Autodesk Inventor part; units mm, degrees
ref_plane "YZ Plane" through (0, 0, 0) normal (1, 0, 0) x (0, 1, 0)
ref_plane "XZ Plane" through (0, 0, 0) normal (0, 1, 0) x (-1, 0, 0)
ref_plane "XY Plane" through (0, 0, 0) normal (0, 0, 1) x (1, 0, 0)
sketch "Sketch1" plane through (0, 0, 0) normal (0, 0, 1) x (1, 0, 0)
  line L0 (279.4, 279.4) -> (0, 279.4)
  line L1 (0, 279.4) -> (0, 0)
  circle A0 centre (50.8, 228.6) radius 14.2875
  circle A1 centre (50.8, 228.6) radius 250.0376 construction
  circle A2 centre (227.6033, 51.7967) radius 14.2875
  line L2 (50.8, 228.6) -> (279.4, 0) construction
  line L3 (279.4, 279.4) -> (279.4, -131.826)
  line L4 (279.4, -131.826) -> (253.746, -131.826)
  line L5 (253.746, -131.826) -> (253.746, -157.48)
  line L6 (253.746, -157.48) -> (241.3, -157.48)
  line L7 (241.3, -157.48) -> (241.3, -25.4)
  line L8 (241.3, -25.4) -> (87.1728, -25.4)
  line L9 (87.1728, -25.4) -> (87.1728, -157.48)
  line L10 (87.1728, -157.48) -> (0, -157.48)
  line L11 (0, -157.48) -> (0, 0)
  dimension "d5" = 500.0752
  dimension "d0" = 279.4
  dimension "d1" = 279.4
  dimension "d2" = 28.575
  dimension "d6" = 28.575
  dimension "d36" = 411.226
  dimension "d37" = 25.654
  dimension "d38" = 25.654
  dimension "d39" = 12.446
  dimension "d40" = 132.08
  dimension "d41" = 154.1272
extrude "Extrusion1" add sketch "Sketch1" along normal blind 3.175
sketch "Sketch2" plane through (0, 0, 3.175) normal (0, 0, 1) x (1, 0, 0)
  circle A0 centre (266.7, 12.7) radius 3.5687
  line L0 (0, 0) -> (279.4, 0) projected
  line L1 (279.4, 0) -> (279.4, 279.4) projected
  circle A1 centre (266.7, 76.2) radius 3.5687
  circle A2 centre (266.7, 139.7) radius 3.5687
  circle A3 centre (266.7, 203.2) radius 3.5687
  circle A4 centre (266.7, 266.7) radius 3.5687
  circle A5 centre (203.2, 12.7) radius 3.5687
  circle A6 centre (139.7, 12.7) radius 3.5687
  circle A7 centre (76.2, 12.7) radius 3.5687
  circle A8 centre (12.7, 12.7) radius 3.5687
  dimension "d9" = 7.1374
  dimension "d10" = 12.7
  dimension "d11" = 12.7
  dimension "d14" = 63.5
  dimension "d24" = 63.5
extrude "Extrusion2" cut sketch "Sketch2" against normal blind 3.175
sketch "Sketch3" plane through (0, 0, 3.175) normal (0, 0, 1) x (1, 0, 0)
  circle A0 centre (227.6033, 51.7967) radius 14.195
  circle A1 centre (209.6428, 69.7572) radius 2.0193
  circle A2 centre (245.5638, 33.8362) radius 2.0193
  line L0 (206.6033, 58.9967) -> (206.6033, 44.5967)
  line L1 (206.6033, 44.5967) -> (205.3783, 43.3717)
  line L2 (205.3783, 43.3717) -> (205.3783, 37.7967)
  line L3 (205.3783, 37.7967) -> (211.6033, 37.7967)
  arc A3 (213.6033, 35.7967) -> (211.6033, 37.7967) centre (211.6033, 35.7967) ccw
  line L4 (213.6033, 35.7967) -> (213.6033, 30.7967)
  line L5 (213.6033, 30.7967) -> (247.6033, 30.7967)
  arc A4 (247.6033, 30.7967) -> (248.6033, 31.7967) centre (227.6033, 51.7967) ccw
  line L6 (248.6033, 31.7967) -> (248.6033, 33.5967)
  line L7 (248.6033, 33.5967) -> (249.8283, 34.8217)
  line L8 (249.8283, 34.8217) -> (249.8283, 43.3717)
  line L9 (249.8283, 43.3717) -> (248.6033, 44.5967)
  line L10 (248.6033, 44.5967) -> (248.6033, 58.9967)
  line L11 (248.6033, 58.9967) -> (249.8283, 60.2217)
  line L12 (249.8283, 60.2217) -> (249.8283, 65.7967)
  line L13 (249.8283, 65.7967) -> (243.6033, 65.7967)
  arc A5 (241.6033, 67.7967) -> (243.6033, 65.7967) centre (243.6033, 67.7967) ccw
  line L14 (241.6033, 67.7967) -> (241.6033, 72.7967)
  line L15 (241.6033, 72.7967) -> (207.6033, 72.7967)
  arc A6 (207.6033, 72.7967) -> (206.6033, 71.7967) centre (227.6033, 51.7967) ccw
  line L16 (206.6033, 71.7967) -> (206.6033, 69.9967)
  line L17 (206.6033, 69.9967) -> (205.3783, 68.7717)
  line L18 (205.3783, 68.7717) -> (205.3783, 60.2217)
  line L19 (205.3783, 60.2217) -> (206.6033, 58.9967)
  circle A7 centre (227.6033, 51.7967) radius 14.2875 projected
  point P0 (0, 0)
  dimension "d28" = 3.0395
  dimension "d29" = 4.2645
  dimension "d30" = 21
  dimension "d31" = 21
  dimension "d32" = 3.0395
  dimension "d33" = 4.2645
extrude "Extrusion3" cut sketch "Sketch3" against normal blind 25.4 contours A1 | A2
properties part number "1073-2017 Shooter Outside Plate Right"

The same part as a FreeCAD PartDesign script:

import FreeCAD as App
import Part
import Sketcher
from FreeCAD import Vector
Q = App.Units.Quantity

doc = App.newDocument("Part")
body = doc.addObject("PartDesign::Body", "Body")

# Sketch on XY plane
sketch1 = body.newObject("Sketcher::SketchObject", "Sketch")
sketch1.AttachmentSupport = (doc.getObject("XY_Plane"), [""])
sketch1.MapMode = "FlatFace"
sketch1.addGeometry([
    Part.LineSegment(Vector(279, -132, 0), Vector(279, 279, 0)),  # 0
    Part.LineSegment(Vector(279, 279, 0), Vector(0, 279, 0)),  # 1
    Part.LineSegment(Vector(0, 279, 0), Vector(0, -157, 0)),  # 2
    Part.LineSegment(Vector(0, -157, 0), Vector(87, -157, 0)),  # 3
    Part.LineSegment(Vector(87, -157, 0), Vector(87, -25, 0)),  # 4
    Part.LineSegment(Vector(87, -25, 0), Vector(241, -25, 0)),  # 5
    Part.LineSegment(Vector(241, -25, 0), Vector(241, -157, 0)),  # 6
    Part.LineSegment(Vector(241, -157, 0), Vector(254, -157, 0)),  # 7
    Part.LineSegment(Vector(254, -157, 0), Vector(254, -132, 0)),  # 8
    Part.LineSegment(Vector(254, -132, 0), Vector(279, -132, 0)),  # 9
    Part.Circle(Vector(228, 52, 0), Vector(0, 0, 1), 14),  # 10
    Part.Circle(Vector(51, 229, 0), Vector(0, 0, 1), 14),  # 11
], False)
sketch1.addConstraint([
    Sketcher.Constraint("Coincident", 0, 2, 1, 1),
    Sketcher.Constraint("Coincident", 1, 2, 2, 1),
    Sketcher.Constraint("Coincident", 2, 2, 3, 1),
    Sketcher.Constraint("Coincident", 3, 2, 4, 1),
    Sketcher.Constraint("Coincident", 4, 2, 5, 1),
    Sketcher.Constraint("Coincident", 5, 2, 6, 1),
    Sketcher.Constraint("Coincident", 6, 2, 7, 1),
    Sketcher.Constraint("Coincident", 7, 2, 8, 1),
    Sketcher.Constraint("Coincident", 8, 2, 9, 1),
    Sketcher.Constraint("Coincident", 9, 2, 0, 1),
    Sketcher.Constraint("Vertical", 0),
    Sketcher.Constraint("Horizontal", 1),
    Sketcher.Constraint("Vertical", 2),
    Sketcher.Constraint("Horizontal", 3),
    Sketcher.Constraint("Vertical", 4),
    Sketcher.Constraint("Horizontal", 5),
    Sketcher.Constraint("Vertical", 6),
    Sketcher.Constraint("Horizontal", 7),
    Sketcher.Constraint("Vertical", 8),
    Sketcher.Constraint("Horizontal", 9),
    Sketcher.Constraint("Equal", 10, 11),
    Sketcher.Constraint("PointOnObject", 1, 2, -2),
    Sketcher.Constraint("Horizontal", 3, 2, 6, 2),
    Sketcher.Constraint("Equal", 9, 8),
    Sketcher.Constraint("DistanceX", 1, 2, 1, 1, Q("11 in")),
    Sketcher.Constraint("Diameter", 10, Q("1.125 in")),
    Sketcher.Constraint("DistanceY", 4, 1, 4, 2, Q("5.2 in")),
    Sketcher.Constraint("DistanceY", -1, 1, 0, 2, Q("11 in")),
    Sketcher.Constraint("DistanceX", 7, 1, 7, 2, Q("0.49 in")),
    Sketcher.Constraint("DistanceX", 9, 1, 9, 2, Q("1.01 in")),
    Sketcher.Constraint("DistanceY", 0, 1, 0, 2, Q("16.19 in")),
    Sketcher.Constraint("DistanceX", 5, 1, 5, 2, Q("6.068 in")),
    Sketcher.Constraint("DistanceX", -1, 1, 11, 3, Q("2 in")),
    Sketcher.Constraint("DistanceY", -1, 1, 11, 3, Q("9 in")),
    Sketcher.Constraint("DistanceX", -1, 1, 10, 3, 227.6033),
    Sketcher.Constraint("DistanceY", -1, 1, 10, 3, 51.7967),
])
pad1 = body.newObject("PartDesign::Pad", "Pad")
pad1.Profile = sketch1
pad1.Length = Q("0.125 in")

# Sketch on XY plane
sketch2 = body.newObject("Sketcher::SketchObject", "Sketch001")
sketch2.AttachmentSupport = (doc.getObject("XY_Plane"), [""])
sketch2.MapMode = "FlatFace"
sketch2.AttachmentOffset = App.Placement(Vector(0, 0, 0.125 * 25.4), App.Rotation())
sketch2.addGeometry([
    Part.Circle(Vector(266.7, 12.7, 0), Vector(0, 0, 1), 3.6),  # 0
    Part.Circle(Vector(266.7, 76.2, 0), Vector(0, 0, 1), 3.6),  # 1
    Part.Circle(Vector(266.7, 139.7, 0), Vector(0, 0, 1), 3.6),  # 2
    Part.Circle(Vector(266.7, 203.2, 0), Vector(0, 0, 1), 3.6),  # 3
    Part.Circle(Vector(266.7, 266.7, 0), Vector(0, 0, 1), 3.6),  # 4
    Part.Circle(Vector(203.2, 12.7, 0), Vector(0, 0, 1), 3.6),  # 5
    Part.Circle(Vector(139.7, 12.7, 0), Vector(0, 0, 1), 3.6),  # 6
    Part.Circle(Vector(76.2, 12.7, 0), Vector(0, 0, 1), 3.6),  # 7
    Part.Circle(Vector(12.7, 12.7, 0), Vector(0, 0, 1), 3.6),  # 8
], False)
sketch2.addConstraint([
    Sketcher.Constraint("Equal", 0, 1),
    Sketcher.Constraint("Equal", 1, 2),
    Sketcher.Constraint("Equal", 2, 3),
    Sketcher.Constraint("Equal", 3, 4),
    Sketcher.Constraint("Equal", 4, 5),
    Sketcher.Constraint("Equal", 5, 6),
    Sketcher.Constraint("Equal", 6, 7),
    Sketcher.Constraint("Equal", 7, 8),
    Sketcher.Constraint("Horizontal", 0, 3, 5, 3),
    Sketcher.Constraint("Horizontal", 5, 3, 6, 3),
    Sketcher.Constraint("Horizontal", 6, 3, 7, 3),
    Sketcher.Constraint("Horizontal", 7, 3, 8, 3),
    Sketcher.Constraint("Vertical", 0, 3, 1, 3),
    Sketcher.Constraint("Vertical", 1, 3, 2, 3),
    Sketcher.Constraint("Vertical", 2, 3, 3, 3),
    Sketcher.Constraint("Vertical", 3, 3, 4, 3),
    Sketcher.Constraint("Diameter", 0, Q("0.281 in")),
    Sketcher.Constraint("DistanceY", -1, 1, 0, 3, Q("0.5 in")),
    Sketcher.Constraint("DistanceX", -1, 1, 8, 3, Q("0.5 in")),
    Sketcher.Constraint("DistanceY", 0, 3, 1, 3, Q("2.5 in")),
    Sketcher.Constraint("DistanceY", 1, 3, 2, 3, Q("2.5 in")),
    Sketcher.Constraint("DistanceY", 2, 3, 3, 3, Q("2.5 in")),
    Sketcher.Constraint("DistanceY", 3, 3, 4, 3, Q("2.5 in")),
    Sketcher.Constraint("DistanceX", 5, 3, 0, 3, Q("2.5 in")),
    Sketcher.Constraint("DistanceX", 6, 3, 5, 3, Q("2.5 in")),
    Sketcher.Constraint("DistanceX", 7, 3, 6, 3, Q("2.5 in")),
    Sketcher.Constraint("DistanceX", 8, 3, 7, 3, Q("2.5 in")),
])
pocket1 = body.newObject("PartDesign::Pocket", "Pocket")
pocket1.Profile = sketch2
pocket1.Length = Q("0.125 in")

# Sketch on XY plane
sketch3 = body.newObject("Sketcher::SketchObject", "Sketch002")
sketch3.AttachmentSupport = (doc.getObject("XY_Plane"), [""])
sketch3.MapMode = "FlatFace"
sketch3.AttachmentOffset = App.Placement(Vector(0, 0, 0.125 * 25.4), App.Rotation())
sketch3.addGeometry([
    Part.Circle(Vector(209.6, 69.8, 0), Vector(0, 0, 1), 2),
    Part.Circle(Vector(245.6, 33.8, 0), Vector(0, 0, 1), 2),
], False)
sketch3.addConstraint([
    Sketcher.Constraint("Equal", 0, 1),
    Sketcher.Constraint("Diameter", 0, Q("0.159 in")),
    Sketcher.Constraint("DistanceX", -1, 1, 0, 3, 209.6428),
    Sketcher.Constraint("DistanceY", -1, 1, 0, 3, 69.7572),
    Sketcher.Constraint("DistanceX", -1, 1, 1, 3, 245.5638),
    Sketcher.Constraint("DistanceY", -1, 1, 1, 3, 33.8362),
])
pocket2 = body.newObject("PartDesign::Pocket", "Pocket001")
pocket2.Profile = sketch3
pocket2.Length = Q("1 in")

doc.recompute()
